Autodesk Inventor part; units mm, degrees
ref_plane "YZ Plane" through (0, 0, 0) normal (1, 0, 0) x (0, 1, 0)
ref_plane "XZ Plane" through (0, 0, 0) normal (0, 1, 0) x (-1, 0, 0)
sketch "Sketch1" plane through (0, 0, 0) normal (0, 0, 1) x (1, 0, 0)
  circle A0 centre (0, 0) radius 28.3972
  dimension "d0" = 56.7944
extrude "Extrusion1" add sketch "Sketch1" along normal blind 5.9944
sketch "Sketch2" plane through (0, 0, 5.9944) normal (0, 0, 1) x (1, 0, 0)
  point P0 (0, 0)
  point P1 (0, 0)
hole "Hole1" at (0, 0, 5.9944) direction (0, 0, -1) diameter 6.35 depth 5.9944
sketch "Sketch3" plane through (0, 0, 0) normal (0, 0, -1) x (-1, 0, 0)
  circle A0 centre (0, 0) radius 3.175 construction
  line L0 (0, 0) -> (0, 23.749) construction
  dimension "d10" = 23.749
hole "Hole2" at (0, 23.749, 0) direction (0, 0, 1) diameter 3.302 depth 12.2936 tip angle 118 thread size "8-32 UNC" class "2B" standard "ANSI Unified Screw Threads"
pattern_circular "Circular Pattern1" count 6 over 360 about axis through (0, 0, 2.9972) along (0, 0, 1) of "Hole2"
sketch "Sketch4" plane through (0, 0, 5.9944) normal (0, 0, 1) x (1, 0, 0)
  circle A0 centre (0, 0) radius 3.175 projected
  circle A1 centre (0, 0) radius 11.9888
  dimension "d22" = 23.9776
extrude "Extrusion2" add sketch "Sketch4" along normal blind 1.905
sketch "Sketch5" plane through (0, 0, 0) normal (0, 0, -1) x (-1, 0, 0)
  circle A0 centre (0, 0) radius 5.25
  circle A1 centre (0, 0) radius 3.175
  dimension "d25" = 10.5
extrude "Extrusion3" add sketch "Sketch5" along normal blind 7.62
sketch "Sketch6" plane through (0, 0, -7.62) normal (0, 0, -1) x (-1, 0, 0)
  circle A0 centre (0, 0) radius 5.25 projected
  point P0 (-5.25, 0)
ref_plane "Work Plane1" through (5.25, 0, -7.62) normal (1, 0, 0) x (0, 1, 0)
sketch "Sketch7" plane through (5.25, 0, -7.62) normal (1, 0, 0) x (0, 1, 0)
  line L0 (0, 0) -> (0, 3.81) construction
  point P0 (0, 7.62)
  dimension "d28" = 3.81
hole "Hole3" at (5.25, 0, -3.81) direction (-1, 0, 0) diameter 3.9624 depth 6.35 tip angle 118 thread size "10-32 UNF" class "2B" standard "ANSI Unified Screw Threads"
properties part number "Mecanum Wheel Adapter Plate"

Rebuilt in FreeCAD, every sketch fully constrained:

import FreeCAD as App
import Part
import Sketcher

V = App.Vector
Q = App.Units.Quantity

doc = App.newDocument("Part")
body = doc.addObject("PartDesign::Body", "Body")

# Sketch on XY plane
sketch1 = body.newObject("Sketcher::SketchObject", "Sketch")
sketch1.AttachmentSupport = (doc.getObject("XY_Plane"), [""])
sketch1.MapMode = "FlatFace"
sketch1.addGeometry(Part.Circle(V(0, 0, 0), V(0, 0, 1), 28), False)
sketch1.addConstraint([
    Sketcher.Constraint("Coincident", 0, 3, -1, 1),
    Sketcher.Constraint("Diameter", 0, Q("2.236 in")),
])
pad1 = body.newObject("PartDesign::Pad", "Pad")
pad1.Profile = sketch1
pad1.Length = Q("0.236 in")

# Sketch on XY plane
sketch2 = body.newObject("Sketcher::SketchObject", "Sketch001")
sketch2.AttachmentSupport = (doc.getObject("XY_Plane"), [""])
sketch2.MapMode = "FlatFace"
sketch2.AttachmentOffset = App.Placement(V(0, 0, 0.236 * 25.4), App.Rotation())
sketch2.addGeometry(Part.Circle(V(0, 0, 0), V(0, 0, 1), 3.2), False)
sketch2.addConstraint([
    Sketcher.Constraint("Coincident", 0, 3, -1, 1),
    Sketcher.Constraint("Diameter", 0, Q("0.25 in")),
])
doc.recompute()
hole = body.newObject("PartDesign::Hole", "Hole")
hole.Profile = sketch2
hole.ThreadType = "None"
hole.Diameter = Q("0.25 in")
hole.DepthType = "Dimension"
hole.Depth = Q("0.236 in")
hole.DrillPoint = "Flat"

# Sketch on XY plane
sketch3 = body.newObject("Sketcher::SketchObject", "Sketch002")
sketch3.AttachmentSupport = (doc.getObject("XY_Plane"), [""])
sketch3.MapMode = "FlatFace"
sketch3.addGeometry(Part.Circle(V(0, 23.7, 0), V(0, 0, 1), 1.7), False)
sketch3.addConstraint([
    Sketcher.Constraint("PointOnObject", 0, 3, -2),
    Sketcher.Constraint("Diameter", 0, Q("0.13 in")),
    Sketcher.Constraint("DistanceY", -1, 1, 0, 3, Q("0.935 in")),
])
doc.recompute()
hole2 = body.newObject("PartDesign::Hole", "Hole001")
hole2.Profile = sketch3
hole2.ThreadType = "None"
hole2.Diameter = Q("0.13 in")
hole2.DepthType = "Dimension"
hole2.Depth = Q("0.484 in")
hole2.DrillPoint = "Angled"
hole2.DrillPointAngle = 118
hole2.Reversed = True
doc.recompute()

polarpattern = body.newObject("PartDesign::PolarPattern", "PolarPattern")
polarpattern.Originals = [hole2]
polarpattern.Axis = (doc.getObject("Z_Axis"), [""])
polarpattern.Angle = 360
polarpattern.Occurrences = 6
body.Tip = polarpattern

# Sketch on XY plane
sketch4 = body.newObject("Sketcher::SketchObject", "Sketch003")
sketch4.AttachmentSupport = (doc.getObject("XY_Plane"), [""])
sketch4.MapMode = "FlatFace"
sketch4.AttachmentOffset = App.Placement(V(0, 0, 0.236 * 25.4), App.Rotation())
sketch4.addGeometry([
    Part.Circle(V(0, 0, 0), V(0, 0, 1), 12),
    Part.Circle(V(0, 0, 0), V(0, 0, 1), 3.2),
], False)
sketch4.addConstraint([
    Sketcher.Constraint("Coincident", 0, 3, -1, 1),
    Sketcher.Constraint("Coincident", 1, 3, -1, 1),
    Sketcher.Constraint("Diameter", 0, Q("0.944 in")),
    Sketcher.Constraint("Diameter", 1, Q("0.25 in")),
])
pad2 = body.newObject("PartDesign::Pad", "Pad001")
pad2.Profile = sketch4
pad2.Length = Q("0.075 in")

# Sketch on XY plane
sketch5 = body.newObject("Sketcher::SketchObject", "Sketch004")
sketch5.AttachmentSupport = (doc.getObject("XY_Plane"), [""])
sketch5.MapMode = "FlatFace"
sketch5.addGeometry([
    Part.Circle(V(0, 0, 0), V(0, 0, 1), 5.2),
    Part.Circle(V(0, 0, 0), V(0, 0, 1), 3.2),
], False)
sketch5.addConstraint([
    Sketcher.Constraint("Coincident", 0, 3, -1, 1),
    Sketcher.Constraint("Coincident", 1, 3, -1, 1),
    Sketcher.Constraint("Diameter", 0, Q("10.5 mm")),
    Sketcher.Constraint("Diameter", 1, Q("0.25 in")),
])
pad3 = body.newObject("PartDesign::Pad", "Pad002")
pad3.Profile = sketch5
pad3.Length = Q("0.3 in")
pad3.Reversed = True

# Sketch on YZ plane
sketch6 = body.newObject("Sketcher::SketchObject", "Sketch005")
sketch6.AttachmentSupport = (doc.getObject("YZ_Plane"), [""])
sketch6.MapMode = "FlatFace"
sketch6.AttachmentOffset = App.Placement(V(0, 0, 0.2066929 * 25.4), App.Rotation())
sketch6.addGeometry(Part.Circle(V(0, -3.8, 0), V(0, 0, 1), 2), False)
sketch6.addConstraint([
    Sketcher.Constraint("PointOnObject", 0, 3, -2),
    Sketcher.Constraint("Diameter", 0, Q("0.156 in")),
    Sketcher.Constraint("DistanceY", 0, 3, -1, 1, Q("0.15 in")),
])
doc.recompute()
hole3 = body.newObject("PartDesign::Hole", "Hole002")
hole3.Profile = sketch6
hole3.ThreadType = "None"
hole3.Diameter = Q("0.156 in")
hole3.DepthType = "Dimension"
hole3.Depth = Q("0.25 in")
hole3.DrillPoint = "Angled"
hole3.DrillPointAngle = 118

doc.recompute()
